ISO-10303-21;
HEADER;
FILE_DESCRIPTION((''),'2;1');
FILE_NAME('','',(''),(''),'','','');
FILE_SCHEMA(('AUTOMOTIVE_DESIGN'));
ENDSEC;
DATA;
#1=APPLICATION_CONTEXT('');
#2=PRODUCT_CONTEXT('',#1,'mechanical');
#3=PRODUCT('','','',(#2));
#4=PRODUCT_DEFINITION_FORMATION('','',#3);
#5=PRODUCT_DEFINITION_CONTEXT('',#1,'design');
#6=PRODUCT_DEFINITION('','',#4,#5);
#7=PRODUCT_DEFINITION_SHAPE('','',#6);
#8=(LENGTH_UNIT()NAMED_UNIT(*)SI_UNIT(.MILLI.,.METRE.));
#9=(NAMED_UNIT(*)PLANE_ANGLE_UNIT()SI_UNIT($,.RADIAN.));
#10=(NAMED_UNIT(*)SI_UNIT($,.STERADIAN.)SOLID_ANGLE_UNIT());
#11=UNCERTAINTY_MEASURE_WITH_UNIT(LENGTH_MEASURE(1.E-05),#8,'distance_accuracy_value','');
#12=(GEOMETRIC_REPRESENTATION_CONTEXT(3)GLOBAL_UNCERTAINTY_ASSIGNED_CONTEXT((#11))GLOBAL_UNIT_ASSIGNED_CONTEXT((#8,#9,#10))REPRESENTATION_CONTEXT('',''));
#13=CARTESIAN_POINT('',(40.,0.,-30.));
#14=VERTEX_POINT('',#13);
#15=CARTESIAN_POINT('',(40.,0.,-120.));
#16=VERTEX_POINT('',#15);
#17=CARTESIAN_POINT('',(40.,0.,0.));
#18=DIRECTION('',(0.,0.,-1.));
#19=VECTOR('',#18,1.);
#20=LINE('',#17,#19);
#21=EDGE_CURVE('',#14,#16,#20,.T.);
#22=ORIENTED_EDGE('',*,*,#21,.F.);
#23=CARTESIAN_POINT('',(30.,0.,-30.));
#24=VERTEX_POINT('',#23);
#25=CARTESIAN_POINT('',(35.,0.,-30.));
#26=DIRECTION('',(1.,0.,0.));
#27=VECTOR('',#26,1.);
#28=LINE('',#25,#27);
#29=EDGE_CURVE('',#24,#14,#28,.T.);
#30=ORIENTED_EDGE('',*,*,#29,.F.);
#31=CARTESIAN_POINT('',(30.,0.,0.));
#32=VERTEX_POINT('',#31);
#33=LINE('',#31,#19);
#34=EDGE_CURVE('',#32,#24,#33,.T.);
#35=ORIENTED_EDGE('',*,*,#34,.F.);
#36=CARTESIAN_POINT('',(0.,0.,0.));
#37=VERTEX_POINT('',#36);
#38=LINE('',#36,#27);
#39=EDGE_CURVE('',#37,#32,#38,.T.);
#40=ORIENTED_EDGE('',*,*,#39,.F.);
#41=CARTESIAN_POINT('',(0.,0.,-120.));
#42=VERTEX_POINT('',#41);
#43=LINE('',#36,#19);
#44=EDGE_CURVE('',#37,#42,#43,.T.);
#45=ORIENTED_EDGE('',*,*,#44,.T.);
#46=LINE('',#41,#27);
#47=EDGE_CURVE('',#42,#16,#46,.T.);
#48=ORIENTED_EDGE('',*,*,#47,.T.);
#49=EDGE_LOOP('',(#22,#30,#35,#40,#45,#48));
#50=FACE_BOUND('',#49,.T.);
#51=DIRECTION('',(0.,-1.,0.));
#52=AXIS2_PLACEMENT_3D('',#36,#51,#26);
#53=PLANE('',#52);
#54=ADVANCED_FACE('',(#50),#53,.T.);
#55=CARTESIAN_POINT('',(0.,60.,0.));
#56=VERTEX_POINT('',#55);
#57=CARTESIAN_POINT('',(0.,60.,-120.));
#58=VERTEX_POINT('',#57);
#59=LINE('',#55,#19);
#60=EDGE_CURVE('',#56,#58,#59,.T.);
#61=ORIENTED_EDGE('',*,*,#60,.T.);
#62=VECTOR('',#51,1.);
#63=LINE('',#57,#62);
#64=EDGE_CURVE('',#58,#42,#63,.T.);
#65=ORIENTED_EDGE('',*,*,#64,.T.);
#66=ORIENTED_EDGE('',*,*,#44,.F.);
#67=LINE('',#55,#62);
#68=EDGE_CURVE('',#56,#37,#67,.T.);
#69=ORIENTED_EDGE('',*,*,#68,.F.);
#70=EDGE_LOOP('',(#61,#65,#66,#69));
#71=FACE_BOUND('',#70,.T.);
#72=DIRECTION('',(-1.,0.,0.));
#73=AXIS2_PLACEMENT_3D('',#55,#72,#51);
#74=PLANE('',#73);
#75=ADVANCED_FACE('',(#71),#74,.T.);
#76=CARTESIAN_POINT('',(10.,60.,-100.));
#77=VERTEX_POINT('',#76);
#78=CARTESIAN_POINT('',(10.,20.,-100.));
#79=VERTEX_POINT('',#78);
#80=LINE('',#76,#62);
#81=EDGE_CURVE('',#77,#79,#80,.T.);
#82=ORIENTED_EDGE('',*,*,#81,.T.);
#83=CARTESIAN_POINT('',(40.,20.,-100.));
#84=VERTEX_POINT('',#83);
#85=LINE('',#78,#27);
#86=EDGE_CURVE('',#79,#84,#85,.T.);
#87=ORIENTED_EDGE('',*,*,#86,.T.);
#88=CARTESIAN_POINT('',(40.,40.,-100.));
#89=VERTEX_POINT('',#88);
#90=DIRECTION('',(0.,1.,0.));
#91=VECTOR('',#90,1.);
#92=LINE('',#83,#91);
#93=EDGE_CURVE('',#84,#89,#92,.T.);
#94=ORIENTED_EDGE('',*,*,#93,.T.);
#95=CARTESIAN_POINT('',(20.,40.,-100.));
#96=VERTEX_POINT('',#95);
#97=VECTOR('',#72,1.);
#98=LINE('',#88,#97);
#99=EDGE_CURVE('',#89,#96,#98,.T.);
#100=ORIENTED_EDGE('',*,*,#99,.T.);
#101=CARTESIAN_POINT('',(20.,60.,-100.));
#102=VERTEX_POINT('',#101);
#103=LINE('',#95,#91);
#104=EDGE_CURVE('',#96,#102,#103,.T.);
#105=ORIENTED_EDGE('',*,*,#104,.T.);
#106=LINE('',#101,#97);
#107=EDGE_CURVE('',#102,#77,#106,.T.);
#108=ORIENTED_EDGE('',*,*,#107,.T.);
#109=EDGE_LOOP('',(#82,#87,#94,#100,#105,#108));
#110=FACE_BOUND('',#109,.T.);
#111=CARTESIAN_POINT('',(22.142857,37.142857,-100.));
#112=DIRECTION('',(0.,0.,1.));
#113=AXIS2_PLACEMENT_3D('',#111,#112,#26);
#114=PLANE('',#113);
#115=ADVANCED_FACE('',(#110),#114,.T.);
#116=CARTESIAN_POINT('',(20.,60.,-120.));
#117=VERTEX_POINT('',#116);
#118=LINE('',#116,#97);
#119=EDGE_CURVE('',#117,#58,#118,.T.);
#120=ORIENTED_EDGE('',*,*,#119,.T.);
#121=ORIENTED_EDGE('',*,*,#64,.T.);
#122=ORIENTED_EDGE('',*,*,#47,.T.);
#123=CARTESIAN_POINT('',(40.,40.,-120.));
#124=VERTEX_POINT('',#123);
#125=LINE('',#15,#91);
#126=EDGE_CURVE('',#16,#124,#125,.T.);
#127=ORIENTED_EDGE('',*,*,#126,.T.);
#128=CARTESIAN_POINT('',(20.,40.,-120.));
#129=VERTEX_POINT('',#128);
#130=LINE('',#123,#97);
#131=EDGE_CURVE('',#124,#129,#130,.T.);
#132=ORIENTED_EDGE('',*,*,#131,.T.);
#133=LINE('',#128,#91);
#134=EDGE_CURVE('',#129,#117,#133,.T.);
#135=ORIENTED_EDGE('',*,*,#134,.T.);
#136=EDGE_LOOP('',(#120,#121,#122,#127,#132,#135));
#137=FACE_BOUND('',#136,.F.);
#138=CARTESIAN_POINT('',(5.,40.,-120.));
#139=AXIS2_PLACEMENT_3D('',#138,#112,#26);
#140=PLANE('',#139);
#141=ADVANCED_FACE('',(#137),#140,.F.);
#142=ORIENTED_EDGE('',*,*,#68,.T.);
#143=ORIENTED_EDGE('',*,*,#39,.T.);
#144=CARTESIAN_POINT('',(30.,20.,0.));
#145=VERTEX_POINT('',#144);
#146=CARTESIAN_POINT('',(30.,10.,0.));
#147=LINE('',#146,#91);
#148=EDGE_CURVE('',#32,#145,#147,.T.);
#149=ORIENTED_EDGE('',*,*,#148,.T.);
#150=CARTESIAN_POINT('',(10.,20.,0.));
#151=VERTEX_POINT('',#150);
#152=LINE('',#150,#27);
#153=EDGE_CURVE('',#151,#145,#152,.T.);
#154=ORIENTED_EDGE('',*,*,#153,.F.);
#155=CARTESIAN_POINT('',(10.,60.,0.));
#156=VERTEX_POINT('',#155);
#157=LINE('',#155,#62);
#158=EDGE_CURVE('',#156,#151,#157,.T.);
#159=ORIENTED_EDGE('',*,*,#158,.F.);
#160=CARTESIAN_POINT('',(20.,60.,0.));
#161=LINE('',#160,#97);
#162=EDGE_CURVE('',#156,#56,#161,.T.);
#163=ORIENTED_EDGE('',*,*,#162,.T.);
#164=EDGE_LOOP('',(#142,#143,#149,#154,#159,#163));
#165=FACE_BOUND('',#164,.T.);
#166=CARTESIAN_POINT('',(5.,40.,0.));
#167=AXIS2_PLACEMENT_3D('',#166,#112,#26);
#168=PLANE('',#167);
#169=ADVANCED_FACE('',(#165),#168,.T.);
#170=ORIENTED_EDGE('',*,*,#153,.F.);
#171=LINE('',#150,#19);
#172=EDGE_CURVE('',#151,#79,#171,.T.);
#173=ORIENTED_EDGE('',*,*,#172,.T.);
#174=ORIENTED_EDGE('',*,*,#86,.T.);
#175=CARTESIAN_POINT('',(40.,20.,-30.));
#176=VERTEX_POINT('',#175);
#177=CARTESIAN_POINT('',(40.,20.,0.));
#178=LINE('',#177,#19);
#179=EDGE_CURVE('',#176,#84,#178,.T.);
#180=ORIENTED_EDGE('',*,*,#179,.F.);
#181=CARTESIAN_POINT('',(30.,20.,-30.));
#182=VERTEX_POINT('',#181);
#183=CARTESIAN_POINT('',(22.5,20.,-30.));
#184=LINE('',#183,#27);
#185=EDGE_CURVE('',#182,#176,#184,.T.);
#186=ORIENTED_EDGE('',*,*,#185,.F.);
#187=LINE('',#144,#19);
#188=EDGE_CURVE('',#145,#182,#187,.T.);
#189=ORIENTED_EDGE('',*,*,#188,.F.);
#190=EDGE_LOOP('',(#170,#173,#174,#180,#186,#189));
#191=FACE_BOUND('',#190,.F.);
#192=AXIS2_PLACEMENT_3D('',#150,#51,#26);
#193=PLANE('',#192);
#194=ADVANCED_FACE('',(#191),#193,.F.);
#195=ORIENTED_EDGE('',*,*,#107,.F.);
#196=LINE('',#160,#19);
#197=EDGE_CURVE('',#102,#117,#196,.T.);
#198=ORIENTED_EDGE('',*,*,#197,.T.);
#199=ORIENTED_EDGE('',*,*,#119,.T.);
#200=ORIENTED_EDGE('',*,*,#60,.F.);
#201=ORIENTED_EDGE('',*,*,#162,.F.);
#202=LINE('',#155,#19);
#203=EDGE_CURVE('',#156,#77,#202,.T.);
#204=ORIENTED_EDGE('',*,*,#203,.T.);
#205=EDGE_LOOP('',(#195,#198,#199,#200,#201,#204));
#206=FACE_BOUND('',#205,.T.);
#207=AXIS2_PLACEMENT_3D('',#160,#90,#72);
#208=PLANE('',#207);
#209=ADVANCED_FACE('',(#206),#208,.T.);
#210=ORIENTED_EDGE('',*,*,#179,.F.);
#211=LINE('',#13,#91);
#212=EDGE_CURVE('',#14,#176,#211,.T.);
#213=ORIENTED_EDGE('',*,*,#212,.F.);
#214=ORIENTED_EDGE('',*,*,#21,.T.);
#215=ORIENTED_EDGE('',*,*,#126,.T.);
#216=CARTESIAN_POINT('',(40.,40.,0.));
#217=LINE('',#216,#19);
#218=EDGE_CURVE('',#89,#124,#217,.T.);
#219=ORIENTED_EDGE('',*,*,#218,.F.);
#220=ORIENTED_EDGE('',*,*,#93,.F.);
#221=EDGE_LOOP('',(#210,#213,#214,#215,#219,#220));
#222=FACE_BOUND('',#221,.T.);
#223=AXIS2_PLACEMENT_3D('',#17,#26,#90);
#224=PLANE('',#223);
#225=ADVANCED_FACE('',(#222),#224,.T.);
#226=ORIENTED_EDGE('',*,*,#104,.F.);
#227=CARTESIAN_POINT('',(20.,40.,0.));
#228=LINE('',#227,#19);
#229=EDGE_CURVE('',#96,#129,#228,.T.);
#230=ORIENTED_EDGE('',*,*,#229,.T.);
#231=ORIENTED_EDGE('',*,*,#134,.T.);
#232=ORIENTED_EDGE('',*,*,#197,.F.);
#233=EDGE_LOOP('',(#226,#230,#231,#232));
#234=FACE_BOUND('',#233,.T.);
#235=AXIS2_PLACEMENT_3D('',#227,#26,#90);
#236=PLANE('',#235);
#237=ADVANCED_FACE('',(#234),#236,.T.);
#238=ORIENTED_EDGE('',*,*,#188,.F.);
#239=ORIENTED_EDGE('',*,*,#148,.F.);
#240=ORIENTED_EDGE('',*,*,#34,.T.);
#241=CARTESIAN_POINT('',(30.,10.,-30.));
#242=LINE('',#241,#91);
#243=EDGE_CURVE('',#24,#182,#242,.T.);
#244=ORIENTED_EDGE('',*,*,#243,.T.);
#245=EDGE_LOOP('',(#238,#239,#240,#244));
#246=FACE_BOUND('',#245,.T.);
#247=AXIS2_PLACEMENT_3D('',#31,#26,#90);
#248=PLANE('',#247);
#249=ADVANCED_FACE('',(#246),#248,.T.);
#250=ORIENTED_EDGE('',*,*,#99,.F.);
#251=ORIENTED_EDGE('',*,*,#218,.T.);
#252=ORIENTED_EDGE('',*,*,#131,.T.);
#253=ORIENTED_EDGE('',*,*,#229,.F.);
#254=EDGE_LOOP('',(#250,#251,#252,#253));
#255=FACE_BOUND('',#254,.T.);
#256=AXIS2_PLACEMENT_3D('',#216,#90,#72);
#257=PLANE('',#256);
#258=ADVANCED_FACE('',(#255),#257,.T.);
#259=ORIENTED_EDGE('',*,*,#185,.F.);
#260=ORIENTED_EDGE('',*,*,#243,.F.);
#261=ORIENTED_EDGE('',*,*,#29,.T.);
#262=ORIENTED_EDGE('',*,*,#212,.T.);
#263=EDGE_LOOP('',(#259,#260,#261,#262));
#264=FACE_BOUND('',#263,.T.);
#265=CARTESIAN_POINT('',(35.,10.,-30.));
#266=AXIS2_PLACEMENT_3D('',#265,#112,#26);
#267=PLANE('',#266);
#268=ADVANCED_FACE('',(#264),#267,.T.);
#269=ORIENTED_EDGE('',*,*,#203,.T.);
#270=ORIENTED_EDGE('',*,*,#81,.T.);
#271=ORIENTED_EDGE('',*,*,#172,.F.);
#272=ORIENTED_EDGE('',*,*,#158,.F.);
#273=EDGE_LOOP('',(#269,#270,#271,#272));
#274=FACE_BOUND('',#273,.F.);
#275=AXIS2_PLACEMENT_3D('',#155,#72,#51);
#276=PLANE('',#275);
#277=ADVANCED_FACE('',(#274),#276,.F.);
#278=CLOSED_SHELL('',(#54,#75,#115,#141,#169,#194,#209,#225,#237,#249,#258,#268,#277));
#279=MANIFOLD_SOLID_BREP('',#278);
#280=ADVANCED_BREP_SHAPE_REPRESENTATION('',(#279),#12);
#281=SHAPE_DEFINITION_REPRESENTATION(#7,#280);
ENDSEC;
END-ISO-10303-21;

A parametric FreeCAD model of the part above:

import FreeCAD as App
import Part
import Sketcher

V = App.Vector
Q = App.Units.Quantity


def add_polygon(sketch, points):
    """Adds a closed chain of lines whose ends are joined by coincident constraints."""
    first, n = sketch.GeometryCount, len(points)
    for a, b in zip(points, points[1:] + points[:1]):
        sketch.addGeometry(Part.LineSegment(App.Vector(*a, 0), App.Vector(*b, 0)), False)
    for i in range(n):
        sketch.addConstraint(Sketcher.Constraint("Coincident", first + i, 2, first + (i + 1) % n, 1))

doc = App.newDocument("Part")
body = doc.addObject("PartDesign::Body", "Body")

# Sketch on XY plane
sketch1 = body.newObject("Sketcher::SketchObject", "Sketch")
sketch1.AttachmentSupport = (doc.getObject("XY_Plane"), [""])
sketch1.MapMode = "FlatFace"
add_polygon(sketch1, [(0, 60), (0, 0), (40, 0), (40, 40), (20, 40), (20, 60)])  # lines 0-5
sketch1.addConstraint([
    Sketcher.Constraint("Vertical", 0),
    Sketcher.Constraint("Horizontal", 1),
    Sketcher.Constraint("Vertical", 2),
    Sketcher.Constraint("Horizontal", 3),
    Sketcher.Constraint("Vertical", 4),
    Sketcher.Constraint("Horizontal", 5),
    Sketcher.Constraint("Coincident", 0, 2, -1, 1),
    Sketcher.Constraint("Equal", 3, 5),
    Sketcher.Constraint("Equal", 1, 2),
    Sketcher.Constraint("Equal", 5, 4),
    Sketcher.Constraint("DistanceX", 1, 1, 1, 2, Q("40 mm")),
])
pad1 = body.newObject("PartDesign::Pad", "Pad")
pad1.Profile = sketch1
pad1.Length = 120
pad1.Reversed = True

# Sketch on XY plane
sketch2 = body.newObject("Sketcher::SketchObject", "Sketch001")
sketch2.AttachmentSupport = (doc.getObject("XY_Plane"), [""])
sketch2.MapMode = "FlatFace"
add_polygon(sketch2, [(30, 20), (30, 0), (40, 0), (40, 40), (20, 40), (20, 60), (10, 60), (10, 20)])  # lines 0-7
sketch2.addConstraint([
    Sketcher.Constraint("Vertical", 0),
    Sketcher.Constraint("Horizontal", 1),
    Sketcher.Constraint("Vertical", 2),
    Sketcher.Constraint("Horizontal", 3),
    Sketcher.Constraint("Vertical", 4),
    Sketcher.Constraint("Horizontal", 5),
    Sketcher.Constraint("Vertical", 6),
    Sketcher.Constraint("Horizontal", 7),
    Sketcher.Constraint("PointOnObject", 0, 2, -1),
    Sketcher.Constraint("Equal", 1, 5),
    Sketcher.Constraint("Equal", 7, 0),
    Sketcher.Constraint("Equal", 0, 4),
    Sketcher.Constraint("DistanceX", 1, 1, 1, 2, Q("10 mm")),
    Sketcher.Constraint("DistanceX", 3, 2, 3, 1, Q("20 mm")),
    Sketcher.Constraint("DistanceY", 2, 1, 2, 2, Q("40 mm")),
    Sketcher.Constraint("DistanceX", -1, 1, 0, 2, Q("30 mm")),
])
pocket1 = body.newObject("PartDesign::Pocket", "Pocket")
pocket1.Profile = sketch2
pocket1.Length = 30

# Sketch on XY plane
sketch3 = body.newObject("Sketcher::SketchObject", "Sketch002")
sketch3.AttachmentSupport = (doc.getObject("XY_Plane"), [""])
sketch3.MapMode = "FlatFace"
add_polygon(sketch3, [(10, 20), (40, 20), (40, 40), (20, 40), (20, 60), (10, 60)])  # lines 0-5
sketch3.addConstraint([
    Sketcher.Constraint("Horizontal", 0),
    Sketcher.Constraint("Vertical", 1),
    Sketcher.Constraint("Horizontal", 2),
    Sketcher.Constraint("Vertical", 3),
    Sketcher.Constraint("Horizontal", 4),
    Sketcher.Constraint("Vertical", 5),
    Sketcher.Constraint("Equal", 2, 1),
    Sketcher.Constraint("Equal", 1, 3),
    Sketcher.Constraint("DistanceX", 0, 1, 0, 2, Q("30 mm")),
    Sketcher.Constraint("DistanceX", 2, 2, 2, 1, Q("20 mm")),
    Sketcher.Constraint("DistanceX", -1, 1, 0, 2, Q("40 mm")),
    Sketcher.Constraint("DistanceY", -1, 1, 0, 2, Q("20 mm")),
])
pocket2 = body.newObject("PartDesign::Pocket", "Pocket001")
pocket2.Profile = sketch3
pocket2.Length = 100

doc.recompute()
